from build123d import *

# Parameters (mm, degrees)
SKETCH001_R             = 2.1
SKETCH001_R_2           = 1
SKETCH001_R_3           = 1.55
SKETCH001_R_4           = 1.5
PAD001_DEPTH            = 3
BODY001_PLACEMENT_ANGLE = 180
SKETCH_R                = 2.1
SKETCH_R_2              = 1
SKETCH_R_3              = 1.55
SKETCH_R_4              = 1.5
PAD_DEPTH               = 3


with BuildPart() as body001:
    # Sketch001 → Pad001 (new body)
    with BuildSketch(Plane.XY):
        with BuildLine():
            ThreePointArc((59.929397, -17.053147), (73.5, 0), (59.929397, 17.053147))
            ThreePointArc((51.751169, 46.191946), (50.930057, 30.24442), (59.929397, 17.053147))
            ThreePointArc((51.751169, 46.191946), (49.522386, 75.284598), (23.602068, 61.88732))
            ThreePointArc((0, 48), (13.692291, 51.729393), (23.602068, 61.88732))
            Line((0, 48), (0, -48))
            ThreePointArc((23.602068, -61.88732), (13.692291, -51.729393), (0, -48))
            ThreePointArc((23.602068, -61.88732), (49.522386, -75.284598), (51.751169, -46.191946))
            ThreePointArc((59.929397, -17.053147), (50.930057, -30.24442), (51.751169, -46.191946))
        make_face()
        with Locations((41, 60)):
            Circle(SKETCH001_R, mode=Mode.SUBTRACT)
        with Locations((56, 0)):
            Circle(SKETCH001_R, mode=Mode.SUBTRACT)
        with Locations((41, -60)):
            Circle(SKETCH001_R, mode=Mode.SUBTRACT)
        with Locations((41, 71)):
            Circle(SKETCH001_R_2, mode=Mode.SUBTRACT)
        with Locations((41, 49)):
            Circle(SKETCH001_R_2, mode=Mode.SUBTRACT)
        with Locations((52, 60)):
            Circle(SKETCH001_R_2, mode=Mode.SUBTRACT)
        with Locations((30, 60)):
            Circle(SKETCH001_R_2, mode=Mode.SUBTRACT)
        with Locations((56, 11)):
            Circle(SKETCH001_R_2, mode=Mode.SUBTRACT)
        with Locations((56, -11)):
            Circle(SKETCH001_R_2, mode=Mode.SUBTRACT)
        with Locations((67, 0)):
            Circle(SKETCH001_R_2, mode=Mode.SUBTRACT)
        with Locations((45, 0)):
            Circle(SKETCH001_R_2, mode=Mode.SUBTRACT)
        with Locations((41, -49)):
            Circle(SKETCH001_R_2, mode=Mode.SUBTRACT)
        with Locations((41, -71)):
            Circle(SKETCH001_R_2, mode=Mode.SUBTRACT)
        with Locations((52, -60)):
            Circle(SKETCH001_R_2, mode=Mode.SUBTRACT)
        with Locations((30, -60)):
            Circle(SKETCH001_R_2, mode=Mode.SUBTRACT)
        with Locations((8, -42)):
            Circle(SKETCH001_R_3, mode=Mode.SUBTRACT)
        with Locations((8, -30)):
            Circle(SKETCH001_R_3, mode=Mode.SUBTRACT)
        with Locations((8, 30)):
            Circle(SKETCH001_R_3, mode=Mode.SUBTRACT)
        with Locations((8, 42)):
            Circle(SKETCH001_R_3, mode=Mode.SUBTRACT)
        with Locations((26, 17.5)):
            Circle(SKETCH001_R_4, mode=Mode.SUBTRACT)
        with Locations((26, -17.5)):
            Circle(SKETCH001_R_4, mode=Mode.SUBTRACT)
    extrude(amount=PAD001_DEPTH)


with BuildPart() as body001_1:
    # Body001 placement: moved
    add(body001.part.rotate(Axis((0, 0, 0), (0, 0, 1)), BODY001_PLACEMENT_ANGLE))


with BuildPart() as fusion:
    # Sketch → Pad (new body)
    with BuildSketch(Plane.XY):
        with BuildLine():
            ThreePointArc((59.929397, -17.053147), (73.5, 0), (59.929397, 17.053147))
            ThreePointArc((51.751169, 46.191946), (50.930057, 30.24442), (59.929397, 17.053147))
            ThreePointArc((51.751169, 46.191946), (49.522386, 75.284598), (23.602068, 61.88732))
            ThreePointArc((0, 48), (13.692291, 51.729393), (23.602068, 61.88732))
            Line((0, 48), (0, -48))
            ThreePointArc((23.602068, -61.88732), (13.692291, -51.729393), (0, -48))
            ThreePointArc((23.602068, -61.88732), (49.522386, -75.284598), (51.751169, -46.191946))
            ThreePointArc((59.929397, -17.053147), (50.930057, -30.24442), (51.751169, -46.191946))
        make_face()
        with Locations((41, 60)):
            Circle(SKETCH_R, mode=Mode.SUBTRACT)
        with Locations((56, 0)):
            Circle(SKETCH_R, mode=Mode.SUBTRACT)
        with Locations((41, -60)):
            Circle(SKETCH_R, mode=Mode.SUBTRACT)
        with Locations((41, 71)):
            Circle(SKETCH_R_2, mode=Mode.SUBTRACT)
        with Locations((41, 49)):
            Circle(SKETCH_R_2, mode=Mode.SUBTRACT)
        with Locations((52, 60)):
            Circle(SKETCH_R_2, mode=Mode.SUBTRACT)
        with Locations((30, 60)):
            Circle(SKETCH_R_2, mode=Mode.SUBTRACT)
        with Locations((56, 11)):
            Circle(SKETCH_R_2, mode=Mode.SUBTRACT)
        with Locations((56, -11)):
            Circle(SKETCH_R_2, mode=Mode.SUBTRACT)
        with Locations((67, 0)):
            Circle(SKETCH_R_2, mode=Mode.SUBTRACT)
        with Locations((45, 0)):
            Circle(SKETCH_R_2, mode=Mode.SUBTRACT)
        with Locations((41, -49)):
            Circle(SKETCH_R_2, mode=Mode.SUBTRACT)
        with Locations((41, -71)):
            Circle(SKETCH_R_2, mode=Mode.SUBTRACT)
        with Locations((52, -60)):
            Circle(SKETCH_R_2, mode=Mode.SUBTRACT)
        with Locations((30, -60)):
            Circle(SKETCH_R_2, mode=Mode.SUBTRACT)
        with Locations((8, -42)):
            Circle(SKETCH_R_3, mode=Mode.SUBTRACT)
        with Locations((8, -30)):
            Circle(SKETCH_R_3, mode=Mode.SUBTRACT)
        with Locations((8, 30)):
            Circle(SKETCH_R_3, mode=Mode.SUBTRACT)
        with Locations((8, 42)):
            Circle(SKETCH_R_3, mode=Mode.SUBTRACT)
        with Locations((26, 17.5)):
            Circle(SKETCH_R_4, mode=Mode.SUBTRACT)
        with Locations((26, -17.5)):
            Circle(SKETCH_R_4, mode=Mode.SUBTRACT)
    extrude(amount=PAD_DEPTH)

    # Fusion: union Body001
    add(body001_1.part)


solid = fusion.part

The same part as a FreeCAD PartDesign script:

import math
import FreeCAD as App
import Part
import Sketcher
from FreeCAD import Vector

doc = App.newDocument("Part")
params = doc.addObject("Spreadsheet::Sheet", "Params")
for row, (alias, value) in enumerate([
    ("sketch1_diameter", "2 mm"),
    ("sketch1_diameter2", "3 mm"),
    ("sketch1_radius", "25 mm"),
    ("sketch1_radius2", "27.000001 mm"),
    ("sketch1_diameter3", "3.1 mm"),
    ("pad1_length", "3 mm"),
    ("sketch2_diameter", "2 mm"),
    ("sketch2_diameter2", "3 mm"),
    ("sketch2_radius", "25 mm"),
    ("sketch2_radius2", "27.000001 mm"),
    ("sketch2_diameter3", "3.1 mm"),
    ("pad2_length", "3 mm"),
], start=1):
    params.set(f"A{row}", alias)
    params.set(f"B{row}", "=" + value)
    params.setAlias(f"B{row}", alias)

body = doc.addObject("PartDesign::Body", "Body")

# Sketch on XY plane
sketch1 = body.newObject("Sketcher::SketchObject", "Sketch")
sketch1.AttachmentSupport = (doc.getObject("XY_Plane"), [""])
sketch1.MapMode = "FlatFace"
sketch1.addGeometry([
    Part.ArcOfCircle(Part.Circle(Vector(56, 0, 0), Vector(0, 0, 1), 17.5), math.radians(-77), math.radians(77)),  # 0
    Part.ArcOfCircle(Part.Circle(Vector(75, 37, 0), Vector(0, 0, 1), 25), math.radians(158), math.radians(233)),  # 1
    Part.ArcOfCircle(Part.Circle(Vector(41, 60, 0), Vector(0, 0, 1), 17.5), math.radians(-52), math.radians(174)),  # 2
    Part.ArcOfCircle(Part.Circle(Vector(0, 75, 0), Vector(0, 0, 1), 27), math.radians(-90), math.radians(-29)),  # 3
    Part.LineSegment(Vector(0, 48, 0), Vector(0, -48, 0)),  # 4
    Part.ArcOfCircle(Part.Circle(Vector(0, -75, 0), Vector(0, 0, 1), 27), math.radians(29), math.radians(90)),  # 5
    Part.ArcOfCircle(Part.Circle(Vector(41, -60, 0), Vector(0, 0, 1), 17.5), math.radians(-174), math.radians(52)),  # 6
    Part.ArcOfCircle(Part.Circle(Vector(75, -37, 0), Vector(0, 0, 1), 25), math.radians(127), math.radians(202)),  # 7
    Part.Circle(Vector(8, -42, 0), Vector(0, 0, 1), 1.6),  # 8
    Part.Circle(Vector(30, -60, 0), Vector(0, 0, 1), 1),  # 9
    Part.Circle(Vector(8, -30, 0), Vector(0, 0, 1), 1.6),  # 10
    Part.Circle(Vector(26, -17.5, 0), Vector(0, 0, 1), 1.5),  # 11
    Part.Circle(Vector(41, -71, 0), Vector(0, 0, 1), 1),  # 12
    Part.Circle(Vector(41, -60, 0), Vector(0, 0, 1), 2.1),  # 13
    Part.Circle(Vector(52, -60, 0), Vector(0, 0, 1), 1),  # 14
    Part.Circle(Vector(41, -49, 0), Vector(0, 0, 1), 1),  # 15
    Part.Circle(Vector(56, -11, 0), Vector(0, 0, 1), 1),  # 16
    Part.Circle(Vector(8, 30, 0), Vector(0, 0, 1), 1.6),  # 17
    Part.Circle(Vector(26, 17.5, 0), Vector(0, 0, 1), 1.5),  # 18
    Part.Circle(Vector(8, 42, 0), Vector(0, 0, 1), 1.6),  # 19
    Part.Circle(Vector(30, 60, 0), Vector(0, 0, 1), 1),  # 20
    Part.Circle(Vector(45, 0, 0), Vector(0, 0, 1), 1),  # 21
    Part.Circle(Vector(56, 0, 0), Vector(0, 0, 1), 2.1),  # 22
    Part.Circle(Vector(56, 11, 0), Vector(0, 0, 1), 1),  # 23
    Part.Circle(Vector(67, 0, 0), Vector(0, 0, 1), 1),  # 24
    Part.Circle(Vector(41, 49, 0), Vector(0, 0, 1), 1),  # 25
    Part.Circle(Vector(41, 60, 0), Vector(0, 0, 1), 2.1),  # 26
    Part.Circle(Vector(41, 71, 0), Vector(0, 0, 1), 1),  # 27
    Part.Circle(Vector(52, 60, 0), Vector(0, 0, 1), 1),  # 28
], False)
sketch1.addConstraint([
    Sketcher.Constraint("Coincident", 0, 2, 1, 2),
    Sketcher.Constraint("Coincident", 1, 1, 2, 1),
    Sketcher.Constraint("Coincident", 2, 2, 3, 2),
    Sketcher.Constraint("Coincident", 3, 1, 4, 1),
    Sketcher.Constraint("Coincident", 4, 2, 5, 2),
    Sketcher.Constraint("Coincident", 5, 1, 6, 1),
    Sketcher.Constraint("Coincident", 6, 2, 7, 2),
    Sketcher.Constraint("Coincident", 7, 1, 0, 1),
    Sketcher.Constraint("Vertical", 4),
    Sketcher.Constraint("Coincident", 13, 3, 6, 3),
    Sketcher.Constraint("Coincident", 22, 3, 0, 3),
    Sketcher.Constraint("Coincident", 26, 3, 2, 3),
    Sketcher.Constraint("Equal", 0, 2),
    Sketcher.Constraint("Equal", 3, 5),
    Sketcher.Constraint("Equal", 2, 6),
    Sketcher.Constraint("Equal", 1, 7),
    Sketcher.Constraint("Equal", 8, 10),
    Sketcher.Constraint("Equal", 9, 12),
    Sketcher.Constraint("Equal", 12, 14),
    Sketcher.Constraint("Equal", 14, 15),
    Sketcher.Constraint("Equal", 15, 16),
    Sketcher.Constraint("Equal", 10, 17),
    Sketcher.Constraint("Equal", 11, 18),
    Sketcher.Constraint("Equal", 17, 19),
    Sketcher.Constraint("Equal", 16, 20),
    Sketcher.Constraint("Equal", 20, 21),
    Sketcher.Constraint("Equal", 13, 22),
    Sketcher.Constraint("Equal", 21, 23),
    Sketcher.Constraint("Equal", 23, 24),
    Sketcher.Constraint("Equal", 24, 25),
    Sketcher.Constraint("Equal", 22, 26),
    Sketcher.Constraint("Equal", 25, 27),
    Sketcher.Constraint("Equal", 27, 28),
    Sketcher.Constraint("Symmetric", 3, 3, 5, 3, -1, 1),
    Sketcher.Constraint("Symmetric", 2, 3, 6, 3, -1),
    Sketcher.Constraint("Symmetric", 1, 3, 7, 3, -1),
    Sketcher.Constraint("Symmetric", 10, 3, 17, 3, -1),
    Sketcher.Constraint("Symmetric", 11, 3, 18, 3, -1),
    Sketcher.Constraint("Symmetric", 8, 3, 19, 3, -1),
    Sketcher.Constraint("Symmetric", 9, 3, 20, 3, -1),
    Sketcher.Constraint("Symmetric", 16, 3, 23, 3, -1),
    Sketcher.Constraint("Symmetric", 15, 3, 25, 3, -1),
    Sketcher.Constraint("Symmetric", 12, 3, 27, 3, -1),
    Sketcher.Constraint("Symmetric", 14, 3, 28, 3, -1),
    Sketcher.Constraint("PointOnObject", 0, 3, -1),
    Sketcher.Constraint("PointOnObject", 3, 3, -2),
    Sketcher.Constraint("PointOnObject", 21, 3, -1),
    Sketcher.Constraint("PointOnObject", 24, 3, -1),
    Sketcher.Constraint("PointOnObject", 3, 1, -2),
    Sketcher.Constraint("Horizontal", 6, 3, 9, 3),
    Sketcher.Constraint("Horizontal", 13, 3, 14, 3),
    Sketcher.Constraint("Vertical", 8, 3, 10, 3),
    Sketcher.Constraint("Vertical", 6, 3, 12, 3),
    Sketcher.Constraint("Vertical", 13, 3, 15, 3),
    Sketcher.Constraint("Vertical", 0, 3, 16, 3),
    Sketcher.Constraint("Diameter", 9, 2.0),
    Sketcher.Constraint("Diameter", 11, 3.0),
    Sketcher.Constraint("Radius", 1, 25.0),
    Sketcher.Constraint("Radius", 3, 27.000001),
    Sketcher.Constraint("Diameter", 8, 3.1),
    Sketcher.Constraint("Diameter", 13, 4.2),
    Sketcher.Constraint("Radius", 0, 17.499999),
    Sketcher.Constraint("DistanceY", 4, 2, 4, 1, 96.0),
    Sketcher.Constraint("DistanceX", -1, 1, 0, 3, 56.000001),
    Sketcher.Constraint("DistanceX", -1, 1, 1, 3, 75.0),
    Sketcher.Constraint("DistanceY", -1, 1, 1, 3, 37.0),
    Sketcher.Constraint("DistanceX", -1, 1, 2, 3, 41.0),
    Sketcher.Constraint("DistanceY", -1, 1, 2, 3, 60.0),
    Sketcher.Constraint("DistanceX", -1, 1, 8, 3, 8.0),
    Sketcher.Constraint("DistanceY", 8, 3, -1, 1, 42.0),
    Sketcher.Constraint("DistanceX", -1, 1, 9, 3, 30.0),
    Sketcher.Constraint("DistanceY", 10, 3, -1, 1, 30.0),
    Sketcher.Constraint("DistanceX", -1, 1, 11, 3, 26.0),
    Sketcher.Constraint("DistanceY", 12, 3, -1, 1, 71.0),
    Sketcher.Constraint("DistanceX", -1, 1, 14, 3, 52.0),
    Sketcher.Constraint("DistanceY", 15, 3, -1, 1, 49.0),
    Sketcher.Constraint("DistanceY", 16, 3, -1, 1, 11.0),
    Sketcher.Constraint("DistanceX", -1, 1, 21, 3, 45.0),
    Sketcher.Constraint("DistanceX", -1, 1, 24, 3, 67.0),
    Sketcher.Constraint("DistanceY", 11, 3, 18, 3, 35.0),
])
sketch1.setExpression("Constraints[55]", "Params.sketch1_diameter")
sketch1.setExpression("Constraints[56]", "Params.sketch1_diameter2")
sketch1.setExpression("Constraints[57]", "Params.sketch1_radius")
sketch1.setExpression("Constraints[58]", "Params.sketch1_radius2")
sketch1.setExpression("Constraints[59]", "Params.sketch1_diameter3")
pad1 = body.newObject("PartDesign::Pad", "Pad")
pad1.Profile = sketch1
pad1.setExpression("Length", "Params.pad1_length")
body2 = doc.addObject("PartDesign::Body", "Body001")
doc.recompute()

body.Placement = App.Placement(Vector(0, 0, 0), App.Rotation(Vector(0, 0, 1), 180))
boolean = body2.newObject("PartDesign::Boolean", "Boolean")
boolean.Type = "Fuse"
boolean.addObjects([body])
body3 = doc.addObject("PartDesign::Body", "Body002")

# Sketch on XY plane
sketch2 = body3.newObject("Sketcher::SketchObject", "Sketch001")
sketch2.AttachmentSupport = (doc.getObject("XY_Plane002"), [""])
sketch2.MapMode = "FlatFace"
sketch2.addGeometry([
    Part.ArcOfCircle(Part.Circle(Vector(56, 0, 0), Vector(0, 0, 1), 17.5), math.radians(-77), math.radians(77)),  # 0
    Part.ArcOfCircle(Part.Circle(Vector(75, 37, 0), Vector(0, 0, 1), 25), math.radians(158), math.radians(233)),  # 1
    Part.ArcOfCircle(Part.Circle(Vector(41, 60, 0), Vector(0, 0, 1), 17.5), math.radians(-52), math.radians(174)),  # 2
    Part.ArcOfCircle(Part.Circle(Vector(0, 75, 0), Vector(0, 0, 1), 27), math.radians(-90), math.radians(-29)),  # 3
    Part.LineSegment(Vector(0, 48, 0), Vector(0, -48, 0)),  # 4
    Part.ArcOfCircle(Part.Circle(Vector(0, -75, 0), Vector(0, 0, 1), 27), math.radians(29), math.radians(90)),  # 5
    Part.ArcOfCircle(Part.Circle(Vector(41, -60, 0), Vector(0, 0, 1), 17.5), math.radians(-174), math.radians(52)),  # 6
    Part.ArcOfCircle(Part.Circle(Vector(75, -37, 0), Vector(0, 0, 1), 25), math.radians(127), math.radians(202)),  # 7
    Part.Circle(Vector(8, -42, 0), Vector(0, 0, 1), 1.6),  # 8
    Part.Circle(Vector(30, -60, 0), Vector(0, 0, 1), 1),  # 9
    Part.Circle(Vector(8, -30, 0), Vector(0, 0, 1), 1.6),  # 10
    Part.Circle(Vector(26, -17.5, 0), Vector(0, 0, 1), 1.5),  # 11
    Part.Circle(Vector(41, -71, 0), Vector(0, 0, 1), 1),  # 12
    Part.Circle(Vector(41, -60, 0), Vector(0, 0, 1), 2.1),  # 13
    Part.Circle(Vector(52, -60, 0), Vector(0, 0, 1), 1),  # 14
    Part.Circle(Vector(41, -49, 0), Vector(0, 0, 1), 1),  # 15
    Part.Circle(Vector(56, -11, 0), Vector(0, 0, 1), 1),  # 16
    Part.Circle(Vector(8, 30, 0), Vector(0, 0, 1), 1.6),  # 17
    Part.Circle(Vector(26, 17.5, 0), Vector(0, 0, 1), 1.5),  # 18
    Part.Circle(Vector(8, 42, 0), Vector(0, 0, 1), 1.6),  # 19
    Part.Circle(Vector(30, 60, 0), Vector(0, 0, 1), 1),  # 20
    Part.Circle(Vector(45, 0, 0), Vector(0, 0, 1), 1),  # 21
    Part.Circle(Vector(56, 0, 0), Vector(0, 0, 1), 2.1),  # 22
    Part.Circle(Vector(56, 11, 0), Vector(0, 0, 1), 1),  # 23
    Part.Circle(Vector(67, 0, 0), Vector(0, 0, 1), 1),  # 24
    Part.Circle(Vector(41, 49, 0), Vector(0, 0, 1), 1),  # 25
    Part.Circle(Vector(41, 60, 0), Vector(0, 0, 1), 2.1),  # 26
    Part.Circle(Vector(41, 71, 0), Vector(0, 0, 1), 1),  # 27
    Part.Circle(Vector(52, 60, 0), Vector(0, 0, 1), 1),  # 28
], False)
sketch2.addConstraint([
    Sketcher.Constraint("Coincident", 0, 2, 1, 2),
    Sketcher.Constraint("Coincident", 1, 1, 2, 1),
    Sketcher.Constraint("Coincident", 2, 2, 3, 2),
    Sketcher.Constraint("Coincident", 3, 1, 4, 1),
    Sketcher.Constraint("Coincident", 4, 2, 5, 2),
    Sketcher.Constraint("Coincident", 5, 1, 6, 1),
    Sketcher.Constraint("Coincident", 6, 2, 7, 2),
    Sketcher.Constraint("Coincident", 7, 1, 0, 1),
    Sketcher.Constraint("Vertical", 4),
    Sketcher.Constraint("Coincident", 13, 3, 6, 3),
    Sketcher.Constraint("Coincident", 22, 3, 0, 3),
    Sketcher.Constraint("Coincident", 26, 3, 2, 3),
    Sketcher.Constraint("Equal", 0, 2),
    Sketcher.Constraint("Equal", 3, 5),
    Sketcher.Constraint("Equal", 2, 6),
    Sketcher.Constraint("Equal", 1, 7),
    Sketcher.Constraint("Equal", 8, 10),
    Sketcher.Constraint("Equal", 9, 12),
    Sketcher.Constraint("Equal", 12, 14),
    Sketcher.Constraint("Equal", 14, 15),
    Sketcher.Constraint("Equal", 15, 16),
    Sketcher.Constraint("Equal", 10, 17),
    Sketcher.Constraint("Equal", 11, 18),
    Sketcher.Constraint("Equal", 17, 19),
    Sketcher.Constraint("Equal", 16, 20),
    Sketcher.Constraint("Equal", 20, 21),
    Sketcher.Constraint("Equal", 13, 22),
    Sketcher.Constraint("Equal", 21, 23),
    Sketcher.Constraint("Equal", 23, 24),
    Sketcher.Constraint("Equal", 24, 25),
    Sketcher.Constraint("Equal", 22, 26),
    Sketcher.Constraint("Equal", 25, 27),
    Sketcher.Constraint("Equal", 27, 28),
    Sketcher.Constraint("Symmetric", 3, 3, 5, 3, -1, 1),
    Sketcher.Constraint("Symmetric", 2, 3, 6, 3, -1),
    Sketcher.Constraint("Symmetric", 1, 3, 7, 3, -1),
    Sketcher.Constraint("Symmetric", 10, 3, 17, 3, -1),
    Sketcher.Constraint("Symmetric", 11, 3, 18, 3, -1),
    Sketcher.Constraint("Symmetric", 8, 3, 19, 3, -1),
    Sketcher.Constraint("Symmetric", 9, 3, 20, 3, -1),
    Sketcher.Constraint("Symmetric", 16, 3, 23, 3, -1),
    Sketcher.Constraint("Symmetric", 15, 3, 25, 3, -1),
    Sketcher.Constraint("Symmetric", 12, 3, 27, 3, -1),
    Sketcher.Constraint("Symmetric", 14, 3, 28, 3, -1),
    Sketcher.Constraint("PointOnObject", 0, 3, -1),
    Sketcher.Constraint("PointOnObject", 3, 3, -2),
    Sketcher.Constraint("PointOnObject", 21, 3, -1),
    Sketcher.Constraint("PointOnObject", 24, 3, -1),
    Sketcher.Constraint("PointOnObject", 3, 1, -2),
    Sketcher.Constraint("Horizontal", 6, 3, 9, 3),
    Sketcher.Constraint("Horizontal", 13, 3, 14, 3),
    Sketcher.Constraint("Vertical", 8, 3, 10, 3),
    Sketcher.Constraint("Vertical", 6, 3, 12, 3),
    Sketcher.Constraint("Vertical", 13, 3, 15, 3),
    Sketcher.Constraint("Vertical", 0, 3, 16, 3),
    Sketcher.Constraint("Diameter", 9, 2.0),
    Sketcher.Constraint("Diameter", 11, 3.0),
    Sketcher.Constraint("Radius", 1, 25.0),
    Sketcher.Constraint("Radius", 3, 27.000001),
    Sketcher.Constraint("Diameter", 8, 3.1),
    Sketcher.Constraint("Diameter", 13, 4.2),
    Sketcher.Constraint("Radius", 0, 17.499999),
    Sketcher.Constraint("DistanceY", 4, 2, 4, 1, 96.0),
    Sketcher.Constraint("DistanceX", -1, 1, 0, 3, 56.000001),
    Sketcher.Constraint("DistanceX", -1, 1, 1, 3, 75.0),
    Sketcher.Constraint("DistanceY", -1, 1, 1, 3, 37.0),
    Sketcher.Constraint("DistanceX", -1, 1, 2, 3, 41.0),
    Sketcher.Constraint("DistanceY", -1, 1, 2, 3, 60.0),
    Sketcher.Constraint("DistanceX", -1, 1, 8, 3, 8.0),
    Sketcher.Constraint("DistanceY", 8, 3, -1, 1, 42.0),
    Sketcher.Constraint("DistanceX", -1, 1, 9, 3, 30.0),
    Sketcher.Constraint("DistanceY", 10, 3, -1, 1, 30.0),
    Sketcher.Constraint("DistanceX", -1, 1, 11, 3, 26.0),
    Sketcher.Constraint("DistanceY", 12, 3, -1, 1, 71.0),
    Sketcher.Constraint("DistanceX", -1, 1, 14, 3, 52.0),
    Sketcher.Constraint("DistanceY", 15, 3, -1, 1, 49.0),
    Sketcher.Constraint("DistanceY", 16, 3, -1, 1, 11.0),
    Sketcher.Constraint("DistanceX", -1, 1, 21, 3, 45.0),
    Sketcher.Constraint("DistanceX", -1, 1, 24, 3, 67.0),
    Sketcher.Constraint("DistanceY", 11, 3, 18, 3, 35.0),
])
sketch2.setExpression("Constraints[55]", "Params.sketch2_diameter")
sketch2.setExpression("Constraints[56]", "Params.sketch2_diameter2")
sketch2.setExpression("Constraints[57]", "Params.sketch2_radius")
sketch2.setExpression("Constraints[58]", "Params.sketch2_radius2")
sketch2.setExpression("Constraints[59]", "Params.sketch2_diameter3")
pad2 = body3.newObject("PartDesign::Pad", "Pad001")
pad2.Profile = sketch2
pad2.setExpression("Length", "Params.pad2_length")
doc.recompute()

boolean2 = body3.newObject("PartDesign::Boolean", "Boolean001")
boolean2.Type = "Fuse"
boolean2.addObjects([body2])

doc.recompute()
